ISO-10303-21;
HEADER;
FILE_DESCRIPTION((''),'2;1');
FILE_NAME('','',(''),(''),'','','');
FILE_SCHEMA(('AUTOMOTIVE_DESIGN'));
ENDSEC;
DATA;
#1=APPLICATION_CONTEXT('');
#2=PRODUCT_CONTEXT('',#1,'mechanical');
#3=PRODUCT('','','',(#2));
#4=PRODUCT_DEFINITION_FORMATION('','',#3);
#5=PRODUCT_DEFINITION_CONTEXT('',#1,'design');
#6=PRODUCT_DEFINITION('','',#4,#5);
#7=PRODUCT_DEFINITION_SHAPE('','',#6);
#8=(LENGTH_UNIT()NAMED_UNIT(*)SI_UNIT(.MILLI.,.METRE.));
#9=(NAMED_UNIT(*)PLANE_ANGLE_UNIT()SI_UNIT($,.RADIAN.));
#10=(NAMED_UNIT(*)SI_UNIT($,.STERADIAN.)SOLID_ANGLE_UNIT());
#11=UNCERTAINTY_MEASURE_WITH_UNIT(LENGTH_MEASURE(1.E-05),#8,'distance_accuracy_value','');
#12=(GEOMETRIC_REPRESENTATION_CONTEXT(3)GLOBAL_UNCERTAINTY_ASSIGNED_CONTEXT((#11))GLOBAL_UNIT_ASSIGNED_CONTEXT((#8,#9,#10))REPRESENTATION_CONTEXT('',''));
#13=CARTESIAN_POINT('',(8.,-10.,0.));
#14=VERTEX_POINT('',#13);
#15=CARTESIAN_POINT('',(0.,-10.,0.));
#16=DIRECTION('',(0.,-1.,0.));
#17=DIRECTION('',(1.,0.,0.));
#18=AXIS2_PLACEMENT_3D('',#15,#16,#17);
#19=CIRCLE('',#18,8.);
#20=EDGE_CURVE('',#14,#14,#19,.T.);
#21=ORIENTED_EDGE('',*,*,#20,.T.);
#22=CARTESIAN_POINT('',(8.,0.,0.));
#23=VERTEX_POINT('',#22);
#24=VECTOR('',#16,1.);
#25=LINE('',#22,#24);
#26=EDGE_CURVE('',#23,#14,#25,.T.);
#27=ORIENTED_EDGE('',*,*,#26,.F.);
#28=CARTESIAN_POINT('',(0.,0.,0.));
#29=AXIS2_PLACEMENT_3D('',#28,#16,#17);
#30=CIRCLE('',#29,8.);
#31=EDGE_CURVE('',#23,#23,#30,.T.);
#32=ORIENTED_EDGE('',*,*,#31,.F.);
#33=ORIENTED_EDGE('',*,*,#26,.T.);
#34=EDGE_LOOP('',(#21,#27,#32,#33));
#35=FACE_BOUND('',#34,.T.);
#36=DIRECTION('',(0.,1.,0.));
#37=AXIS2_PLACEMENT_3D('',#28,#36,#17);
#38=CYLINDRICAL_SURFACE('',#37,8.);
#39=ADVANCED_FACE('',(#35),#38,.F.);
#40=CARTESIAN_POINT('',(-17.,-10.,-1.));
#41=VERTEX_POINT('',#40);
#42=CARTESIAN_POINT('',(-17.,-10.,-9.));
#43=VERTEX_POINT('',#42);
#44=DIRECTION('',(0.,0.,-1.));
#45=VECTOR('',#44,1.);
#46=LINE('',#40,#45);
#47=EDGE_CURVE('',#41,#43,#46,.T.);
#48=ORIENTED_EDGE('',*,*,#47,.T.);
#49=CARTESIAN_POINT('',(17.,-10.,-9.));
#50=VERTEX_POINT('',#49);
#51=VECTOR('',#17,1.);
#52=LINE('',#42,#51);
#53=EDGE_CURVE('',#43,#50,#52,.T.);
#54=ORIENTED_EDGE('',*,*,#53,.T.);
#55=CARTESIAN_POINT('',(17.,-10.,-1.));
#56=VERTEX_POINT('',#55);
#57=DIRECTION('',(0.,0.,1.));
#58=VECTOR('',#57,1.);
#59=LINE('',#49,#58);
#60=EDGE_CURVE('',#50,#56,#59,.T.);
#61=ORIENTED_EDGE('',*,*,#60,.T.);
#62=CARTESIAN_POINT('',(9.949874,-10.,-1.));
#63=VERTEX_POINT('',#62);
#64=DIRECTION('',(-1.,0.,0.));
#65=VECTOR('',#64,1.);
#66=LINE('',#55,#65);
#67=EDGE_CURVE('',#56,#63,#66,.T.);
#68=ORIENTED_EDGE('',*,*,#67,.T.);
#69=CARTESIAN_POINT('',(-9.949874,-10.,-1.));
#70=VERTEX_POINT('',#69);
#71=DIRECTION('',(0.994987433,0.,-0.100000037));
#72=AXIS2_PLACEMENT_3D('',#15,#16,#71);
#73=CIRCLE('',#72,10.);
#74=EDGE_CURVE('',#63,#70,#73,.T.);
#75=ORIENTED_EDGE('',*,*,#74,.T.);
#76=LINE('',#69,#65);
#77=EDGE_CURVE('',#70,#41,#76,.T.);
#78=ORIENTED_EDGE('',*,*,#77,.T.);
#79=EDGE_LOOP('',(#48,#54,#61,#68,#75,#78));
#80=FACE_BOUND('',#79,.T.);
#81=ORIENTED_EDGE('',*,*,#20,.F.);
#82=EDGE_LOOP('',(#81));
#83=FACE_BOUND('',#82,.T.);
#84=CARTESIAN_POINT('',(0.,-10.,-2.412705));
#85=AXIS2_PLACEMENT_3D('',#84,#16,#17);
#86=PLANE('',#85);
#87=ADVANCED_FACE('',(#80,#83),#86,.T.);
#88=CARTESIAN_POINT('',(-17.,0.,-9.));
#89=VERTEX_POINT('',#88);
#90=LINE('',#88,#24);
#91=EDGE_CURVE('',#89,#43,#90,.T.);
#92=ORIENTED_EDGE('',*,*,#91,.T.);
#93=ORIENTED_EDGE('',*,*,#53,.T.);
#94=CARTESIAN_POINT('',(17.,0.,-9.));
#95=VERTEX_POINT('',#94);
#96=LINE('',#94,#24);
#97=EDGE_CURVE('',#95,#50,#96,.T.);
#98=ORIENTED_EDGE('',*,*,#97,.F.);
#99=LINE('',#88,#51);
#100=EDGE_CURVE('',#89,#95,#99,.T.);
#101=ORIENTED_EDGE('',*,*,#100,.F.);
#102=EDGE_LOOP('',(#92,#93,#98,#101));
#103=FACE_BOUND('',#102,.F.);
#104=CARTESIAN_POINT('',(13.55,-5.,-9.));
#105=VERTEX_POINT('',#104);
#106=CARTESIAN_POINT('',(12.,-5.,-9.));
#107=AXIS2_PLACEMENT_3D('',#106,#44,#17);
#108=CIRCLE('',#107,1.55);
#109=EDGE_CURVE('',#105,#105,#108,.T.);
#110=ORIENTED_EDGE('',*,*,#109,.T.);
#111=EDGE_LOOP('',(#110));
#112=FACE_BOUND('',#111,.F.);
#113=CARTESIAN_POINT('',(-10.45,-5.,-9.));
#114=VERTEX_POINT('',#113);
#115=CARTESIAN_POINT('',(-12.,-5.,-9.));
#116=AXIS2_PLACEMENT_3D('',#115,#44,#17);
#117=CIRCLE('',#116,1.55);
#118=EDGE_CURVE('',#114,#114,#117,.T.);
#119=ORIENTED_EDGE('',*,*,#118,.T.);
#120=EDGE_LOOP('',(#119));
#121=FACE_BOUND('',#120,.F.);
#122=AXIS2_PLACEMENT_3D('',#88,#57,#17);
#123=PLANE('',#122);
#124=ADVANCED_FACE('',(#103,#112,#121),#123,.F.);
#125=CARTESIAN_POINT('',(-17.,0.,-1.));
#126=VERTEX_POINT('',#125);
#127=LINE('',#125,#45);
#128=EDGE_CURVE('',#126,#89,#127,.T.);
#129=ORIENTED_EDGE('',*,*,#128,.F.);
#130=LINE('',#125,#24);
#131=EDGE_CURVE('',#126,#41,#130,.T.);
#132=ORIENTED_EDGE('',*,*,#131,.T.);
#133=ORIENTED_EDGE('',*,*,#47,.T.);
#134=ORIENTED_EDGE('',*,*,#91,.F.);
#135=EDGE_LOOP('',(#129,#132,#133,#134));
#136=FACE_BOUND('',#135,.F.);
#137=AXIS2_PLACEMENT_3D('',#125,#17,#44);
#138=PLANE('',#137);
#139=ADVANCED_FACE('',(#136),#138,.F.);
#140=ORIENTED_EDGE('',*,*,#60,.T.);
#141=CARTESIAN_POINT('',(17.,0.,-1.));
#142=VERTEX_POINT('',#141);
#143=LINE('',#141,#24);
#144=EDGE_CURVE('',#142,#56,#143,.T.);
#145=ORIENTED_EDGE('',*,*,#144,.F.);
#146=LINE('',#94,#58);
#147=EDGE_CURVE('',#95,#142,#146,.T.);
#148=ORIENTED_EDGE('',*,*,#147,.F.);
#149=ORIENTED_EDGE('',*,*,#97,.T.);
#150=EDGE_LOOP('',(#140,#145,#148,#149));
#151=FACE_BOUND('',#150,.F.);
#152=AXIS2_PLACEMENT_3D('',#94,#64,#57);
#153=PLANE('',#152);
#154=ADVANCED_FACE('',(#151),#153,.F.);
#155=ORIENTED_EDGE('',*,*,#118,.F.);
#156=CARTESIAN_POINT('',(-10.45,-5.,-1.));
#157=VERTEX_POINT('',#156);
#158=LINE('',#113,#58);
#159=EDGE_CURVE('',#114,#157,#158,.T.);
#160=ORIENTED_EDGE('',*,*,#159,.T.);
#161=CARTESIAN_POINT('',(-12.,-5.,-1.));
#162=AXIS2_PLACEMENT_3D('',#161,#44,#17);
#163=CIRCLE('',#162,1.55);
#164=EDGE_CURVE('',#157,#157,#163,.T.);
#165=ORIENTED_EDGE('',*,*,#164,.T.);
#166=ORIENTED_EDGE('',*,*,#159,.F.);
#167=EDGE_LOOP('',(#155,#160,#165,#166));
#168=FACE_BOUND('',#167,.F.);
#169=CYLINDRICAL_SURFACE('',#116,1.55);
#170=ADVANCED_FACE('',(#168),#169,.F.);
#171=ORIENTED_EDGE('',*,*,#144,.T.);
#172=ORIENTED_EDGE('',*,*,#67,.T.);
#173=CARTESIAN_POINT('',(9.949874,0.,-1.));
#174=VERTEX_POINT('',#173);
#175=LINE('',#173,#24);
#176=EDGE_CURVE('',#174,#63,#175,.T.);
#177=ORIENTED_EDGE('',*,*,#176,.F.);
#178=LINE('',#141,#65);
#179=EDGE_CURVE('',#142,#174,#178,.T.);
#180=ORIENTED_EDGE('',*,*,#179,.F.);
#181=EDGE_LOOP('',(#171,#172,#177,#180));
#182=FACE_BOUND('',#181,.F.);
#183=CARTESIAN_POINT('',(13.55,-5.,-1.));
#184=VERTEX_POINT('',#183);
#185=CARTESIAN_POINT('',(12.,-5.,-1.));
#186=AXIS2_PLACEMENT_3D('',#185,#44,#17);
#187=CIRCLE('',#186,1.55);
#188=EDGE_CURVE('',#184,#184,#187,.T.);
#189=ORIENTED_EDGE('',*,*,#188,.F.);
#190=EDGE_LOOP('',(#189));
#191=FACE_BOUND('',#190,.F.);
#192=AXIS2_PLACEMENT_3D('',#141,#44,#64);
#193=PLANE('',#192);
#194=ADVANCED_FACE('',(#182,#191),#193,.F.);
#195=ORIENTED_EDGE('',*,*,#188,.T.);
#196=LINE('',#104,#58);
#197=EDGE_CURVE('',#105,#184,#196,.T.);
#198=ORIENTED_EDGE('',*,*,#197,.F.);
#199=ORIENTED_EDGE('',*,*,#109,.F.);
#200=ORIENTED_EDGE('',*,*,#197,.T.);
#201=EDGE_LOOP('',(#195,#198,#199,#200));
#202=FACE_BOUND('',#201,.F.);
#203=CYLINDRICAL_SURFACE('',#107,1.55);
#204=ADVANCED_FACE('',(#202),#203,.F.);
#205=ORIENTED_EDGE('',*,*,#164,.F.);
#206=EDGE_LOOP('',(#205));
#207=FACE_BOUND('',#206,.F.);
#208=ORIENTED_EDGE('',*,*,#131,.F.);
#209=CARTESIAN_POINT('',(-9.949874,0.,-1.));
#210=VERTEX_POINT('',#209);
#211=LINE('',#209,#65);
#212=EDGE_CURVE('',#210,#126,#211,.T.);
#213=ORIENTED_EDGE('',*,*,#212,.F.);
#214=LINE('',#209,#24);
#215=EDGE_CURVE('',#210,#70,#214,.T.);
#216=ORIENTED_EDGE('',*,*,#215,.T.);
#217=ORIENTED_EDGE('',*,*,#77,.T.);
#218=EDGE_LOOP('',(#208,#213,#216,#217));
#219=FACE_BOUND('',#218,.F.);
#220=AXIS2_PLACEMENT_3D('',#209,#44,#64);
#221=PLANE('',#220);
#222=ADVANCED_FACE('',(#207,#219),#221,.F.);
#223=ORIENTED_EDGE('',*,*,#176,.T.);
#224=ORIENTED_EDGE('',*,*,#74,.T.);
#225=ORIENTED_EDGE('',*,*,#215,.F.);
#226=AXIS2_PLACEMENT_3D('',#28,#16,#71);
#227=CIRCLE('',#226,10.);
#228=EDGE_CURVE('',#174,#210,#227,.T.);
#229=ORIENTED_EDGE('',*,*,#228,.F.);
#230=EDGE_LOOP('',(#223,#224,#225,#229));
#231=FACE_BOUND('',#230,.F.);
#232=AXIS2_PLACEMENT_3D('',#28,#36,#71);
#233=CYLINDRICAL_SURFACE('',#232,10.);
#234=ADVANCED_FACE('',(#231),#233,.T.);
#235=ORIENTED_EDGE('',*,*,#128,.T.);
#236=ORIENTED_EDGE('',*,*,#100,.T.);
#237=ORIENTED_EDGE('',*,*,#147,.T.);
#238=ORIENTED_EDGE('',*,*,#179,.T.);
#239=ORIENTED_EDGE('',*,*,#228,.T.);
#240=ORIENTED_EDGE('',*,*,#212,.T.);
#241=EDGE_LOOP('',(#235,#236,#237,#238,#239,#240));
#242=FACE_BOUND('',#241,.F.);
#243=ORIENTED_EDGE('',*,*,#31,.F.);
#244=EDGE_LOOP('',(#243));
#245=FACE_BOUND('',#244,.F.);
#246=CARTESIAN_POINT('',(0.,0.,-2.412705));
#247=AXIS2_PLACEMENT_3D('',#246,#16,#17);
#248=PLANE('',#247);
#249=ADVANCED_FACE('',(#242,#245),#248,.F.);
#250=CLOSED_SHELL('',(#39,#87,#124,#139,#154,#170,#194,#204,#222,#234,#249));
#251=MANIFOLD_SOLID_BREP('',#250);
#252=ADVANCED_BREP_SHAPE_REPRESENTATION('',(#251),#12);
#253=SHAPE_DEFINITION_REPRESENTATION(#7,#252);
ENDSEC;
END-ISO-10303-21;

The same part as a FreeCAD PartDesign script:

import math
import FreeCAD as App
import Part
import Sketcher

V = App.Vector
Q = App.Units.Quantity

doc = App.newDocument("Part")
body = doc.addObject("PartDesign::Body", "Body")

sketch1 = body.newObject("Sketcher::SketchObject", "Sketch")
sketch1.AttachmentSupport = (doc.getObject("XZ_Plane"), [""])
sketch1.MapMode = "FlatFace"
sketch1.addGeometry(Part.LineSegment(V(-17, -1, 0), V(-17, -9, 0)), False)
sketch1.addGeometry(Part.LineSegment(V(-17, -9, 0), V(17, -9, 0)), False)
sketch1.addGeometry(Part.LineSegment(V(17, -9, 0), V(17, -1, 0)), False)
sketch1.addGeometry(Part.LineSegment(V(17, -1, 0), V(9.949874, -1, 0)), False)
sketch1.addGeometry(Part.ArcOfCircle(Part.Circle(V(0, 0, 0), V(0, 0, 1), 10), math.radians(-5.739173), math.radians(185.739173)), False)
sketch1.addGeometry(Part.LineSegment(V(-9.949874, -1, 0), V(-17, -1, 0)), False)
sketch1.addGeometry(Part.Circle(V(0, 0, 0), V(0, 0, 1), 8), False)
sketch1.addConstraint(Sketcher.Constraint("Coincident", 0, 2, 1, 1))
sketch1.addConstraint(Sketcher.Constraint("Coincident", 1, 2, 2, 1))
sketch1.addConstraint(Sketcher.Constraint("Coincident", 2, 2, 3, 1))
sketch1.addConstraint(Sketcher.Constraint("Coincident", 3, 2, 4, 1))
sketch1.addConstraint(Sketcher.Constraint("Coincident", 4, 2, 5, 1))
sketch1.addConstraint(Sketcher.Constraint("Coincident", 5, 2, 0, 1))
sketch1.addConstraint(Sketcher.Constraint("Vertical", 0))
sketch1.addConstraint(Sketcher.Constraint("Horizontal", 1))
sketch1.addConstraint(Sketcher.Constraint("Vertical", 2))
sketch1.addConstraint(Sketcher.Constraint("Horizontal", 3))
sketch1.addConstraint(Sketcher.Constraint("Horizontal", 5))
sketch1.addConstraint(Sketcher.Constraint("Coincident", 4, 3, -1, 1))
sketch1.addConstraint(Sketcher.Constraint("Coincident", 6, 3, -1, 1))
sketch1.addConstraint(Sketcher.Constraint("Symmetric", 2, 2, 5, 2, -2))
sketch1.addConstraint(Sketcher.Constraint("Diameter", 6, Q("16 mm")))
sketch1.addConstraint(Sketcher.Constraint("Radius", 4, Q("10 mm")))
sketch1.addConstraint(Sketcher.Constraint("DistanceX", 1, 1, 1, 2, Q("34 mm")))
sketch1.addConstraint(Sketcher.Constraint("DistanceY", 0, 2, 0, 1, Q("8 mm")))
sketch1.addConstraint(Sketcher.Constraint("DistanceY", 0, 2, -1, 1, Q("9 mm")))
pad1 = body.newObject("PartDesign::Pad", "Pad")
pad1.Profile = sketch1
pad1.Length = 10

sketch2 = body.newObject("Sketcher::SketchObject", "Sketch001")
sketch2.AttachmentSupport = (doc.getObject("XY_Plane"), [""])
sketch2.MapMode = "FlatFace"
sketch2.AttachmentOffset = App.Placement(V(0, 0, -9), App.Rotation())
sketch2.addGeometry(Part.Circle(V(-12, -5, 0), V(0, 0, 1), 1.55), False)
sketch2.addGeometry(Part.Circle(V(12, -5, 0), V(0, 0, 1), 1.55), False)
sketch2.addConstraint(Sketcher.Constraint("Equal", 0, 1))
sketch2.addConstraint(Sketcher.Constraint("Symmetric", 0, 3, 1, 3, -2))
sketch2.addConstraint(Sketcher.Constraint("Diameter", 0, Q("3.1 mm")))
sketch2.addConstraint(Sketcher.Constraint("DistanceX", 0, 3, -1, 1, Q("12 mm")))
sketch2.addConstraint(Sketcher.Constraint("DistanceY", 0, 3, -1, 1, Q("5 mm")))
pocket1 = body.newObject("PartDesign::Pocket", "Pocket")
pocket1.Profile = sketch2
pocket1.Type = "ThroughAll"
pocket1.Reversed = True

doc.recompute()
